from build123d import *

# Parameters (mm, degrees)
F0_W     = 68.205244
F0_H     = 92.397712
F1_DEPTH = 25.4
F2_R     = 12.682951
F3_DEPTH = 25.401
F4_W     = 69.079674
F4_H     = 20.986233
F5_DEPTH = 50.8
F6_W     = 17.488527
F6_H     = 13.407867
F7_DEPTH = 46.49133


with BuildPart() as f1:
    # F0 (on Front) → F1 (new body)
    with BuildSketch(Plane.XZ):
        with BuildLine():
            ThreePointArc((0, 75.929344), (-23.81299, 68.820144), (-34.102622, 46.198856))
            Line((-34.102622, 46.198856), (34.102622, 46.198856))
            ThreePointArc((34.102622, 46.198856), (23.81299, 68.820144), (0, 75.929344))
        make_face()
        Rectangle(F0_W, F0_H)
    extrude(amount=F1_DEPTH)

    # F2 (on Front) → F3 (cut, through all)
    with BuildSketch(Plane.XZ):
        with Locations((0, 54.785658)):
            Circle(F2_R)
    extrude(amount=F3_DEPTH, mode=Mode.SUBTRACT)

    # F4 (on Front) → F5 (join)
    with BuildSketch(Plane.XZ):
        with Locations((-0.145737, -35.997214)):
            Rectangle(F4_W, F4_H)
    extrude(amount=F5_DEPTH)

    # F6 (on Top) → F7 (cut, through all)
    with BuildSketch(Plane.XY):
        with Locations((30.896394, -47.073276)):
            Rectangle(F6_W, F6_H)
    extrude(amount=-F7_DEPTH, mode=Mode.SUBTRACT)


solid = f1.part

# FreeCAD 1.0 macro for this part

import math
import FreeCAD as App
import Part
import Sketcher

V = App.Vector
Q = App.Units.Quantity

doc = App.newDocument("Part")
body = doc.addObject("PartDesign::Body", "Body")

sketch1 = doc.addObject("Sketcher::SketchObject", "Sketch")
body.addObject(sketch1)
sketch1.AttachmentSupport = (doc.XZ_Plane, [""])
sketch1.MapMode = "FlatFace"
sketch1.addGeometry(Part.ArcOfCircle(Part.Circle(V(-4, 46, 0), V(0, 0, 1), 30), math.radians(82), math.radians(180)), False)
sketch1.addGeometry(Part.LineSegment(V(-34, 46, 0), V(-34, -46, 0)), False)
sketch1.addGeometry(Part.LineSegment(V(-34, -46, 0), V(34, -46, 0)), False)
sketch1.addGeometry(Part.LineSegment(V(34, -46, 0), V(34, 46, 0)), False)
sketch1.addGeometry(Part.ArcOfCircle(Part.Circle(V(4, 46, 0), V(0, 0, 1), 30), math.radians(0), math.radians(98)), False)
sketch1.addConstraint(Sketcher.Constraint("Tangent", 0, 2, 1, 1))
sketch1.addConstraint(Sketcher.Constraint("Coincident", 1, 2, 2, 1))
sketch1.addConstraint(Sketcher.Constraint("Coincident", 2, 2, 3, 1))
sketch1.addConstraint(Sketcher.Constraint("Tangent", 3, 2, 4, 1))
sketch1.addConstraint(Sketcher.Constraint("Coincident", 4, 2, 0, 1))
sketch1.addConstraint(Sketcher.Constraint("Vertical", 1))
sketch1.addConstraint(Sketcher.Constraint("Horizontal", 2))
sketch1.addConstraint(Sketcher.Constraint("Vertical", 3))
sketch1.addConstraint(Sketcher.Constraint("Equal", 0, 4))
sketch1.addConstraint(Sketcher.Constraint("Symmetric", 0, 2, 2, 2, -1, 1))
sketch1.addConstraint(Sketcher.Constraint("PointOnObject", 4, 2, -2))
sketch1.addConstraint(Sketcher.Constraint("Radius", 0, 30.010754))
sketch1.addConstraint(Sketcher.Constraint("DistanceY", 1, 2, 1, 1, 92.397712))
sketch1.addConstraint(Sketcher.Constraint("DistanceY", 1, 2, 4, 2, 122.1282))
pad1 = doc.addObject("PartDesign::Pad", "Pad")
body.addObject(pad1)
pad1.Profile = sketch1
pad1.Length = Q("1 in")

sketch2 = doc.addObject("Sketcher::SketchObject", "Sketch001")
body.addObject(sketch2)
sketch2.AttachmentSupport = (doc.XZ_Plane, [""])
sketch2.MapMode = "FlatFace"
sketch2.addGeometry(Part.Circle(V(0, 55, 0), V(0, 0, 1), 13), False)
sketch2.addConstraint(Sketcher.Constraint("PointOnObject", 0, 3, -2))
sketch2.addConstraint(Sketcher.Constraint("Diameter", 0, 25.365902))
sketch2.addConstraint(Sketcher.Constraint("DistanceY", -1, 1, 0, 3, 54.785658))
pocket1 = doc.addObject("PartDesign::Pocket", "Pocket")
body.addObject(pocket1)
pocket1.Profile = sketch2
pocket1.Type = "ThroughAll"
pocket1.Reversed = True

sketch3 = doc.addObject("Sketcher::SketchObject", "Sketch002")
body.addObject(sketch3)
sketch3.AttachmentSupport = (doc.XZ_Plane, [""])
sketch3.MapMode = "FlatFace"
sketch3.addGeometry(Part.LineSegment(V(-35, -26, 0), V(-35, -46, 0)), False)
sketch3.addGeometry(Part.LineSegment(V(-35, -46, 0), V(34, -46, 0)), False)
sketch3.addGeometry(Part.LineSegment(V(34, -46, 0), V(34, -26, 0)), False)
sketch3.addGeometry(Part.LineSegment(V(34, -26, 0), V(-35, -26, 0)), False)
sketch3.addConstraint(Sketcher.Constraint("Coincident", 0, 2, 1, 1))
sketch3.addConstraint(Sketcher.Constraint("Coincident", 1, 2, 2, 1))
sketch3.addConstraint(Sketcher.Constraint("Coincident", 2, 2, 3, 1))
sketch3.addConstraint(Sketcher.Constraint("Coincident", 3, 2, 0, 1))
sketch3.addConstraint(Sketcher.Constraint("Vertical", 0))
sketch3.addConstraint(Sketcher.Constraint("Horizontal", 1))
sketch3.addConstraint(Sketcher.Constraint("Vertical", 2))
sketch3.addConstraint(Sketcher.Constraint("Horizontal", 3))
sketch3.addConstraint(Sketcher.Constraint("DistanceX", -1, 1, 1, 2, 34.3941))
sketch3.addConstraint(Sketcher.Constraint("DistanceX", 1, 1, 1, 2, 69.079674))
sketch3.addConstraint(Sketcher.Constraint("DistanceY", 0, 2, 0, 1, 20.986233))
sketch3.addConstraint(Sketcher.Constraint("DistanceY", 0, 2, -1, 1, 46.49033))
pad2 = doc.addObject("PartDesign::Pad", "Pad001")
body.addObject(pad2)
pad2.Profile = sketch3
pad2.Length = Q("2 in")

sketch4 = doc.addObject("Sketcher::SketchObject", "Sketch003")
body.addObject(sketch4)
sketch4.AttachmentSupport = (doc.XY_Plane, [""])
sketch4.MapMode = "FlatFace"
sketch4.addGeometry(Part.LineSegment(V(22, -40, 0), V(22, -54, 0)), False)
sketch4.addGeometry(Part.LineSegment(V(22, -54, 0), V(40, -54, 0)), False)
sketch4.addGeometry(Part.LineSegment(V(40, -54, 0), V(40, -40, 0)), False)
sketch4.addGeometry(Part.LineSegment(V(40, -40, 0), V(22, -40, 0)), False)
sketch4.addConstraint(Sketcher.Constraint("Coincident", 0, 2, 1, 1))
sketch4.addConstraint(Sketcher.Constraint("Coincident", 1, 2, 2, 1))
sketch4.addConstraint(Sketcher.Constraint("Coincident", 2, 2, 3, 1))
sketch4.addConstraint(Sketcher.Constraint("Coincident", 3, 2, 0, 1))
sketch4.addConstraint(Sketcher.Constraint("Vertical", 0))
sketch4.addConstraint(Sketcher.Constraint("Horizontal", 1))
sketch4.addConstraint(Sketcher.Constraint("Vertical", 2))
sketch4.addConstraint(Sketcher.Constraint("Horizontal", 3))
sketch4.addConstraint(Sketcher.Constraint("DistanceX", 1, 1, 1, 2, 17.488527))
sketch4.addConstraint(Sketcher.Constraint("DistanceY", 0, 2, 0, 1, 13.407867))
sketch4.addConstraint(Sketcher.Constraint("DistanceX", -1, 1, 0, 2, 22.15213))
sketch4.addConstraint(Sketcher.Constraint("DistanceY", 0, 2, -1, 1, 53.777209))
pocket2 = doc.addObject("PartDesign::Pocket", "Pocket001")
body.addObject(pocket2)
pocket2.Profile = sketch4
pocket2.Type = "ThroughAll"

doc.recompute()
